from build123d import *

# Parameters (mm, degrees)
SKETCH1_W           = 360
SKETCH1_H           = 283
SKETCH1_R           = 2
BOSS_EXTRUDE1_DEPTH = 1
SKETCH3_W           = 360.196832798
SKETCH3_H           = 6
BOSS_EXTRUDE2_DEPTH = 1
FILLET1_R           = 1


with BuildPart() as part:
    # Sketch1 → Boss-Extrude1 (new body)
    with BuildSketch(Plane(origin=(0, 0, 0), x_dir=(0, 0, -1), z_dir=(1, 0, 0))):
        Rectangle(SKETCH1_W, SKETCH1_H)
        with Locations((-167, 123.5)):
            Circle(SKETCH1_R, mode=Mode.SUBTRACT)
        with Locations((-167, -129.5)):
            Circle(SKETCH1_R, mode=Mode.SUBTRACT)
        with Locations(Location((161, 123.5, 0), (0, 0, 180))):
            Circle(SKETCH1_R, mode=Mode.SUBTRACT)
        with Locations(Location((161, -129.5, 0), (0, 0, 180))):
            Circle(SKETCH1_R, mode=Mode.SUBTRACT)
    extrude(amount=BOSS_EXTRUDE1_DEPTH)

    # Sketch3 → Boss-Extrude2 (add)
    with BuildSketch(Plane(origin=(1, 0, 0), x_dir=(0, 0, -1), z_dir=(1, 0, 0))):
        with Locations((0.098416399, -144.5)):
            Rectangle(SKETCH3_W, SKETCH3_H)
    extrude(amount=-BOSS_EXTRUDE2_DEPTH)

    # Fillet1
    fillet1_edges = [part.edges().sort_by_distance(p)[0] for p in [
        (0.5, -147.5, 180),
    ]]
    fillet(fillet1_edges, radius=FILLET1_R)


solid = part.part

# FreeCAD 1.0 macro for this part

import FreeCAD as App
import Part
import Sketcher


def edges_at(feature, points):
    """Names of the edges that pass closest to the given points."""
    edges = feature.Shape.Edges
    near = lambda p: min(range(len(edges)), key=lambda i: edges[i].distToShape(Part.Vertex(*p))[0])
    return sorted({f"Edge{near(p) + 1}" for p in points})

doc = App.newDocument("Part")
body = doc.addObject("PartDesign::Body", "Body")

# Sketch on YZ plane
sketch1 = body.newObject("Sketcher::SketchObject", "Sketch")
sketch1.AttachmentSupport = (doc.getObject("YZ_Plane"), [""])
sketch1.MapMode = "FlatFace"
sketch1.addGeometry(Part.LineSegment(App.Vector(141.5, 180, 0), App.Vector(-141.5, 180, 0)), False)
sketch1.addGeometry(Part.LineSegment(App.Vector(-141.5, 180, 0), App.Vector(-141.5, -180, 0)), False)
sketch1.addGeometry(Part.LineSegment(App.Vector(-141.5, -180, 0), App.Vector(141.5, -180, 0)), False)
sketch1.addGeometry(Part.LineSegment(App.Vector(141.5, -180, 0), App.Vector(141.5, 180, 0)), False)
sketch1.addGeometry(Part.Circle(App.Vector(-129.5, 167, 0), App.Vector(0, 0, 1), 2), False)
sketch1.addGeometry(Part.Circle(App.Vector(-129.5, -161, 0), App.Vector(0, 0, 1), 2), False)
sketch1.addGeometry(Part.Circle(App.Vector(123.5, 167, 0), App.Vector(0, 0, 1), 2), False)
sketch1.addGeometry(Part.Circle(App.Vector(123.5, -161, 0), App.Vector(0, 0, 1), 2), False)
sketch1.addConstraint(Sketcher.Constraint("Coincident", 0, 2, 1, 1))
sketch1.addConstraint(Sketcher.Constraint("Coincident", 1, 2, 2, 1))
sketch1.addConstraint(Sketcher.Constraint("Coincident", 2, 2, 3, 1))
sketch1.addConstraint(Sketcher.Constraint("Coincident", 3, 2, 0, 1))
sketch1.addConstraint(Sketcher.Constraint("Horizontal", 0))
sketch1.addConstraint(Sketcher.Constraint("Vertical", 1))
sketch1.addConstraint(Sketcher.Constraint("Horizontal", 2))
sketch1.addConstraint(Sketcher.Constraint("Vertical", 3))
sketch1.addConstraint(Sketcher.Constraint("Equal", 4, 5))
sketch1.addConstraint(Sketcher.Constraint("Equal", 5, 6))
sketch1.addConstraint(Sketcher.Constraint("Equal", 6, 7))
sketch1.addConstraint(Sketcher.Constraint("Symmetric", 0, 2, 2, 2, -1, 1))
sketch1.addConstraint(Sketcher.Constraint("Horizontal", 4, 3, 6, 3))
sketch1.addConstraint(Sketcher.Constraint("Horizontal", 5, 3, 7, 3))
sketch1.addConstraint(Sketcher.Constraint("Vertical", 4, 3, 5, 3))
sketch1.addConstraint(Sketcher.Constraint("Vertical", 6, 3, 7, 3))
sketch1.addConstraint(Sketcher.Constraint("Diameter", 4, 4.0))
sketch1.addConstraint(Sketcher.Constraint("DistanceX", 0, 2, 0, 1, 283.0))
sketch1.addConstraint(Sketcher.Constraint("DistanceY", 1, 2, 1, 1, 360.0))
sketch1.addConstraint(Sketcher.Constraint("DistanceY", -1, 1, 4, 3, 167.0))
sketch1.addConstraint(Sketcher.Constraint("DistanceY", 5, 3, -1, 1, 161.0))
sketch1.addConstraint(Sketcher.Constraint("DistanceX", 4, 3, 6, 3, 253.0))
sketch1.addConstraint(Sketcher.Constraint("DistanceX", 0, 2, 4, 3, 12.0))
pad1 = body.newObject("PartDesign::Pad", "Pad")
pad1.Profile = sketch1
pad1.Length = 1

# Sketch on YZ plane
sketch2 = body.newObject("Sketcher::SketchObject", "Sketch001")
sketch2.AttachmentSupport = (doc.getObject("YZ_Plane"), [""])
sketch2.MapMode = "FlatFace"
sketch2.AttachmentOffset = App.Placement(App.Vector(0, 0, 1), App.Rotation())
sketch2.addGeometry(Part.LineSegment(App.Vector(-142, 180, 0), App.Vector(-148, 180, 0)), False)
sketch2.addGeometry(Part.LineSegment(App.Vector(-148, 180, 0), App.Vector(-148, -180, 0)), False)
sketch2.addGeometry(Part.LineSegment(App.Vector(-148, -180, 0), App.Vector(-142, -180, 0)), False)
sketch2.addGeometry(Part.LineSegment(App.Vector(-142, -180, 0), App.Vector(-142, 180, 0)), False)
sketch2.addConstraint(Sketcher.Constraint("Coincident", 0, 2, 1, 1))
sketch2.addConstraint(Sketcher.Constraint("Coincident", 1, 2, 2, 1))
sketch2.addConstraint(Sketcher.Constraint("Coincident", 2, 2, 3, 1))
sketch2.addConstraint(Sketcher.Constraint("Coincident", 3, 2, 0, 1))
sketch2.addConstraint(Sketcher.Constraint("Horizontal", 0))
sketch2.addConstraint(Sketcher.Constraint("Vertical", 1))
sketch2.addConstraint(Sketcher.Constraint("Horizontal", 2))
sketch2.addConstraint(Sketcher.Constraint("Vertical", 3))
sketch2.addConstraint(Sketcher.Constraint("DistanceX", 0, 2, 0, 1, 6.0))
sketch2.addConstraint(Sketcher.Constraint("DistanceY", -1, 1, 0, 2, 180.0))
sketch2.addConstraint(Sketcher.Constraint("DistanceX", 0, 2, -1, 1, 147.5))
sketch2.addConstraint(Sketcher.Constraint("DistanceY", 1, 2, 1, 1, 360.196833))
pad2 = body.newObject("PartDesign::Pad", "Pad001")
pad2.Profile = sketch2
pad2.Length = 1
pad2.Reversed = True
doc.recompute()

fillet = body.newObject("PartDesign::Fillet", "Fillet")
fillet.Base = (pad2, edges_at(pad2, [(0.5, -147.5, 180)]))
fillet.Radius = 1

doc.recompute()
